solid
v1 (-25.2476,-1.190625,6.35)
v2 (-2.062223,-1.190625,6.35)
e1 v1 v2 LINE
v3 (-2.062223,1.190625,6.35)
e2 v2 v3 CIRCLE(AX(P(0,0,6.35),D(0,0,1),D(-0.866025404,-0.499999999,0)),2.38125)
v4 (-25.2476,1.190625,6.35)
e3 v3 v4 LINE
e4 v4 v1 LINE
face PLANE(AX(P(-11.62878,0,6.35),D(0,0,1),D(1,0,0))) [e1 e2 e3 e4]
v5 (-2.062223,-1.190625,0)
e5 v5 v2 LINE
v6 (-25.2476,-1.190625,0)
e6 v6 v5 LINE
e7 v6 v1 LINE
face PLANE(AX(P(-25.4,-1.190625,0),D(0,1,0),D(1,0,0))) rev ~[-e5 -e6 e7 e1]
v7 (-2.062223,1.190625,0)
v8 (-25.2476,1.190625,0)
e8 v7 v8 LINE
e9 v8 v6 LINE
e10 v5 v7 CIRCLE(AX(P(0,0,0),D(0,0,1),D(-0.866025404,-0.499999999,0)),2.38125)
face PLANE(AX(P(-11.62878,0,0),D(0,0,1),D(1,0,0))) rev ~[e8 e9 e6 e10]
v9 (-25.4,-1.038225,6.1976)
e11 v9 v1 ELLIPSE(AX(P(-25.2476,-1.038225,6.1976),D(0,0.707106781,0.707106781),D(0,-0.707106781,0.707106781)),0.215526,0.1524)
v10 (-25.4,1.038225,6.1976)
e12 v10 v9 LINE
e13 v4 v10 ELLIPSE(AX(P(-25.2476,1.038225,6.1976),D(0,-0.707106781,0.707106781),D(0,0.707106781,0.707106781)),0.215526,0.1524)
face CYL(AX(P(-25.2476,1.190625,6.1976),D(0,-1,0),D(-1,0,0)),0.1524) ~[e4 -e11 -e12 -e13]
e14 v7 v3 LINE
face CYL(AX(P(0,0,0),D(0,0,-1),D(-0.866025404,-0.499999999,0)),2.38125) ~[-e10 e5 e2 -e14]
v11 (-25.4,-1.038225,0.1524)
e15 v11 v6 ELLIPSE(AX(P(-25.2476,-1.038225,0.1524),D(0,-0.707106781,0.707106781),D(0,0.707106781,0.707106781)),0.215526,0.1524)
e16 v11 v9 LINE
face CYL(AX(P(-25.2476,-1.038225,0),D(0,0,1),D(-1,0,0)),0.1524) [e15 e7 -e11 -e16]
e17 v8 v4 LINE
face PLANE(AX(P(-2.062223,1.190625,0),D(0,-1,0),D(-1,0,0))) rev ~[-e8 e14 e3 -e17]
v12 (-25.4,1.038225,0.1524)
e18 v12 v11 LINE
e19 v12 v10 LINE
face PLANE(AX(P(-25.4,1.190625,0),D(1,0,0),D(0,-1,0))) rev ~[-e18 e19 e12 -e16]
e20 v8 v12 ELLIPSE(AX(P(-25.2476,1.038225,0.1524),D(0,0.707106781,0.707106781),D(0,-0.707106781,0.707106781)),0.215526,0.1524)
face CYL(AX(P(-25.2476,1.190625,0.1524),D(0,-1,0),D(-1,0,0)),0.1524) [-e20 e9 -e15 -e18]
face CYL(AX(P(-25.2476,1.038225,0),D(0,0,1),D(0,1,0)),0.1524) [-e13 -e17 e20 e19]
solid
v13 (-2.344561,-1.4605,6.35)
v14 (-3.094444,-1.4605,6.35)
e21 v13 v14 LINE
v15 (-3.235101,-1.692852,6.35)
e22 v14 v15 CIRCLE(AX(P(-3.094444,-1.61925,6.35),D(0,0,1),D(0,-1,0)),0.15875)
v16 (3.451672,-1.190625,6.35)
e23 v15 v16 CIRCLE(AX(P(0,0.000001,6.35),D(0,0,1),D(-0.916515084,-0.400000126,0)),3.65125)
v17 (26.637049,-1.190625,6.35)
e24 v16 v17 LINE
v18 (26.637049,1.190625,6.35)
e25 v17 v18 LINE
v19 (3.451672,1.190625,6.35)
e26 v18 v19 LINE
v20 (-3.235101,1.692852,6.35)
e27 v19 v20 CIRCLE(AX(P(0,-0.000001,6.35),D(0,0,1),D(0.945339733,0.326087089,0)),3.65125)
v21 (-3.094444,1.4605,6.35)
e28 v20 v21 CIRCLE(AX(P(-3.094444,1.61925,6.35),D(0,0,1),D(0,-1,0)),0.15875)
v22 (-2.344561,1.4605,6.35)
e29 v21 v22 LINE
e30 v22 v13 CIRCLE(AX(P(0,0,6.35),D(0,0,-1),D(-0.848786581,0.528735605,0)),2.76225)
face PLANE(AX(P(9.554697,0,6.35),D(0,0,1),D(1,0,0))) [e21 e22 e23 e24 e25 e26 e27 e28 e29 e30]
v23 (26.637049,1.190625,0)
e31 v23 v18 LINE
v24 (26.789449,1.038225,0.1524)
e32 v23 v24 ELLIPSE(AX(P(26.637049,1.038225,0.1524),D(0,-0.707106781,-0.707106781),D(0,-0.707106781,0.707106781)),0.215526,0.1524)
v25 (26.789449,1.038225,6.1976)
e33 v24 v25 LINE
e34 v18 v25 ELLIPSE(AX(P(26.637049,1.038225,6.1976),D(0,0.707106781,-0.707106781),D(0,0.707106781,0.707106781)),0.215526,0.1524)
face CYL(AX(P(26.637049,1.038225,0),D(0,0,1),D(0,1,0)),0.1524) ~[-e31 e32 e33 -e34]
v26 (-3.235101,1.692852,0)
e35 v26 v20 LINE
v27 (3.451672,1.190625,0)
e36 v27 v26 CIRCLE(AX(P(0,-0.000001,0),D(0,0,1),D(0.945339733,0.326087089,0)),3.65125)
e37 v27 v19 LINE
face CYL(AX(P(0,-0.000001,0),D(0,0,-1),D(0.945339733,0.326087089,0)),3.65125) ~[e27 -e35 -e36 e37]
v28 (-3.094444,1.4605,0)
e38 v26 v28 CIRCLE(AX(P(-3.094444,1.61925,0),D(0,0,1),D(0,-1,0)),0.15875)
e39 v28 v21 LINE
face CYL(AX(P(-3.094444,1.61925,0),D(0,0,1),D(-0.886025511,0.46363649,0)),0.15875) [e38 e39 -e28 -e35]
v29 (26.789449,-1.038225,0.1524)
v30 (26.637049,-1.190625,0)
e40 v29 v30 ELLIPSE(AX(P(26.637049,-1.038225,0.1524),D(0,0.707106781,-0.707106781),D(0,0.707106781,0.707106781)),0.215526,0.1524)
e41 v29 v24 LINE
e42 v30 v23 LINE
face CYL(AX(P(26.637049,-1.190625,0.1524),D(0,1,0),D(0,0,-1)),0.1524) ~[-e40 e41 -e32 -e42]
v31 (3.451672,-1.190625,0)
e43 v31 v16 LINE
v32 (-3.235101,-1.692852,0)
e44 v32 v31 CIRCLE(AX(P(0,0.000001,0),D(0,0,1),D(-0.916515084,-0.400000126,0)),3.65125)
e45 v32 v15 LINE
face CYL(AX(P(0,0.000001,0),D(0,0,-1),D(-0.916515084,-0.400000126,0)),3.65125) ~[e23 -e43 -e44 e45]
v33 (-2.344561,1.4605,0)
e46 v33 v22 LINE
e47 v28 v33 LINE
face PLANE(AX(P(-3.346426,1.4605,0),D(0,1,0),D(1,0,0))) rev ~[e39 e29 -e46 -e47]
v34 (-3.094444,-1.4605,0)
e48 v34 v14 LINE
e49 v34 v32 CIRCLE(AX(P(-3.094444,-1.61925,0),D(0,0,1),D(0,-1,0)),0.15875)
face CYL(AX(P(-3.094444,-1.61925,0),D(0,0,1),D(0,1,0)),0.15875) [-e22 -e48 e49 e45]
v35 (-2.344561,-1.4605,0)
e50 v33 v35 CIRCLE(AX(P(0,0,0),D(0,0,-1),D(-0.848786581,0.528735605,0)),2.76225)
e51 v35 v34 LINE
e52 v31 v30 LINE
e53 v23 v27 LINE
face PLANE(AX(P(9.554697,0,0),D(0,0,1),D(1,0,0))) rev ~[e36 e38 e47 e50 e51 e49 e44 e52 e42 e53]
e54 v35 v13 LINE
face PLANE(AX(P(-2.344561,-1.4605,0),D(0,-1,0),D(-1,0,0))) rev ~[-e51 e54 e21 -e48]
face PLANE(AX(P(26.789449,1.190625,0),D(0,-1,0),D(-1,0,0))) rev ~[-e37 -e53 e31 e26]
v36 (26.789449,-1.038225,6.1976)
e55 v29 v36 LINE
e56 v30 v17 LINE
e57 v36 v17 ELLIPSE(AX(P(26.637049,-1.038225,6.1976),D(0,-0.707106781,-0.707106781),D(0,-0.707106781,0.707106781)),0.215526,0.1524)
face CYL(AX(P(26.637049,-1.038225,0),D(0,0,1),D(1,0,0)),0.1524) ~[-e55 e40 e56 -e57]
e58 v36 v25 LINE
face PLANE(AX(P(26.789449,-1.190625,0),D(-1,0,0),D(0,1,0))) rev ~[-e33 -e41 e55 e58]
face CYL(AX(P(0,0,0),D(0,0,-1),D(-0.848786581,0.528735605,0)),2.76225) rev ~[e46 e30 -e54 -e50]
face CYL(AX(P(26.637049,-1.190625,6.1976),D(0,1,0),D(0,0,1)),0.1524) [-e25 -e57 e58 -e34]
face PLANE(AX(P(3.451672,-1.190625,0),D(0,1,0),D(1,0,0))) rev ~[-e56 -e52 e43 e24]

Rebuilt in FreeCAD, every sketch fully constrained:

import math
import FreeCAD as App
import Part
import Sketcher
Q = App.Units.Quantity


def edges_at(feature, points):
    """Names of the edges that pass closest to the given points."""
    edges = feature.Shape.Edges
    near = lambda p: min(range(len(edges)), key=lambda i: edges[i].distToShape(Part.Vertex(*p))[0])
    return sorted({f"Edge{near(p) + 1}" for p in points})

doc = App.newDocument("Part")
body = doc.addObject("PartDesign::Body", "Body")
body.AllowCompound = True

sketch1 = doc.addObject("Sketcher::SketchObject", "Sketch")
body.addObject(sketch1)
sketch1.AttachmentSupport = (doc.XY_Plane, [""])
sketch1.MapMode = "FlatFace"
sketch1.addGeometry(Part.LineSegment(App.Vector(-2.062223, 1.190625, 0), App.Vector(-25.4, 1.190625, 0)), False)
sketch1.addGeometry(Part.LineSegment(App.Vector(-25.4, 1.190625, 0), App.Vector(-25.4, -1.190625, 0)), False)
sketch1.addGeometry(Part.LineSegment(App.Vector(-25.4, -1.190625, 0), App.Vector(-2.062223, -1.190625, 0)), False)
sketch1.addGeometry(Part.ArcOfCircle(Part.Circle(App.Vector(0, 0, 0), App.Vector(0, 0, 1), 2.38125), math.radians(-150), math.radians(150)), False)
sketch1.addGeometry(Part.LineSegment(App.Vector(26.789449, -1.190625, 0), App.Vector(26.789449, 1.190625, 0)), False)
sketch1.addGeometry(Part.LineSegment(App.Vector(26.789449, 1.190625, 0), App.Vector(3.451672, 1.190625, 0)), False)
sketch1.addGeometry(Part.ArcOfCircle(Part.Circle(App.Vector(0, -0.000001, 0), App.Vector(0, 0, 1), 3.65125), math.radians(19.031449), math.radians(156.421814)), False)
sketch1.addGeometry(Part.LineSegment(App.Vector(-3.346426, 1.4605, 0), App.Vector(-2.344561, 1.4605, 0)), False)
sketch1.addGeometry(Part.ArcOfCircle(Part.Circle(App.Vector(0, 0, 0), App.Vector(0, 0, 1), 2.76225), math.radians(-148.079936), math.radians(148.079936)), False)
sketch1.addGeometry(Part.LineSegment(App.Vector(-2.344561, -1.4605, 0), App.Vector(-3.346426, -1.4605, 0)), False)
sketch1.addGeometry(Part.ArcOfCircle(Part.Circle(App.Vector(0, 0.000001, 0), App.Vector(0, 0, 1), 3.65125), math.radians(-156.421814), math.radians(-19.031449)), False)
sketch1.addGeometry(Part.LineSegment(App.Vector(3.451672, -1.190625, 0), App.Vector(26.789449, -1.190625, 0)), False)
sketch1.addConstraint(Sketcher.Constraint("Coincident", 0, 2, 1, 1))
sketch1.addConstraint(Sketcher.Constraint("Coincident", 1, 2, 2, 1))
sketch1.addConstraint(Sketcher.Constraint("Coincident", 2, 2, 3, 1))
sketch1.addConstraint(Sketcher.Constraint("Coincident", 3, 2, 0, 1))
sketch1.addConstraint(Sketcher.Constraint("Coincident", 4, 2, 5, 1))
sketch1.addConstraint(Sketcher.Constraint("Coincident", 5, 2, 6, 1))
sketch1.addConstraint(Sketcher.Constraint("Coincident", 6, 2, 7, 1))
sketch1.addConstraint(Sketcher.Constraint("Coincident", 7, 2, 8, 2))
sketch1.addConstraint(Sketcher.Constraint("Coincident", 8, 1, 9, 1))
sketch1.addConstraint(Sketcher.Constraint("Coincident", 9, 2, 10, 1))
sketch1.addConstraint(Sketcher.Constraint("Coincident", 10, 2, 11, 1))
sketch1.addConstraint(Sketcher.Constraint("Coincident", 11, 2, 4, 1))
sketch1.addConstraint(Sketcher.Constraint("Horizontal", 0))
sketch1.addConstraint(Sketcher.Constraint("Vertical", 1))
sketch1.addConstraint(Sketcher.Constraint("Horizontal", 2))
sketch1.addConstraint(Sketcher.Constraint("Vertical", 4))
sketch1.addConstraint(Sketcher.Constraint("Horizontal", 5))
sketch1.addConstraint(Sketcher.Constraint("Horizontal", 7))
sketch1.addConstraint(Sketcher.Constraint("Horizontal", 9))
sketch1.addConstraint(Sketcher.Constraint("Horizontal", 11))
sketch1.addConstraint(Sketcher.Constraint("Coincident", 3, 3, -1, 1))
sketch1.addConstraint(Sketcher.Constraint("Coincident", 6, 3, -1, 1))
sketch1.addConstraint(Sketcher.Constraint("Coincident", 8, 3, -1, 1))
sketch1.addConstraint(Sketcher.Constraint("Coincident", 10, 3, -1, 1))
sketch1.addConstraint(Sketcher.Constraint("Equal", 6, 10))
sketch1.addConstraint(Sketcher.Constraint("Horizontal", 3, 2, 4, 2))
sketch1.addConstraint(Sketcher.Constraint("Horizontal", 2, 2, 10, 2))
sketch1.addConstraint(Sketcher.Constraint("Vertical", 2, 2, 3, 2))
sketch1.addConstraint(Sketcher.Constraint("Vertical", 7, 2, 8, 1))
sketch1.addConstraint(Sketcher.Constraint("Equal", 2, 5))
sketch1.addConstraint(Sketcher.Constraint("DistanceX", 0, 2, -1, 1, Q("1 in")))
sketch1.addConstraint(Sketcher.Constraint("Radius", 3, Q("0.09375 in")))
sketch1.addConstraint(Sketcher.Constraint("DistanceY", 1, 2, 1, 1, Q("0.09375 in")))
sketch1.addConstraint(Sketcher.Constraint("Radius", 6, 3.65125))
sketch1.addConstraint(Sketcher.Constraint("Radius", 8, 2.76225))
sketch1.addConstraint(Sketcher.Constraint("DistanceY", 9, 2, 6, 2, Q("0.115 in")))
pad1 = doc.addObject("PartDesign::Pad", "Pad")
body.addObject(pad1)
pad1.Profile = sketch1
pad1.Length = Q("0.25 in")
doc.recompute()

fillet = doc.addObject("PartDesign::Fillet", "Fillet")
body.addObject(fillet)
fillet.Base = (pad1, edges_at(pad1, [(-3.346, 1.46, 3.175), (-3.346, -1.46, 3.175)]))
fillet.Radius = 0.15875
doc.recompute()

fillet2 = doc.addObject("PartDesign::Fillet", "Fillet001")
body.addObject(fillet2)
fillet2.Base = (fillet, edges_at(fillet, [
    (-25.4, 1.191, 3.175),
    (-25.4, -1.191, 3.175),
    (-25.4, 0, 0),
    (-25.4, 0, 6.35),
    (26.789, -1.191, 3.175),
    (26.789, 1.191, 3.175),
    (26.789, 0, 0),
    (26.789, 0, 6.35),
]))
fillet2.Radius = Q("0.006 in")

doc.recompute()
